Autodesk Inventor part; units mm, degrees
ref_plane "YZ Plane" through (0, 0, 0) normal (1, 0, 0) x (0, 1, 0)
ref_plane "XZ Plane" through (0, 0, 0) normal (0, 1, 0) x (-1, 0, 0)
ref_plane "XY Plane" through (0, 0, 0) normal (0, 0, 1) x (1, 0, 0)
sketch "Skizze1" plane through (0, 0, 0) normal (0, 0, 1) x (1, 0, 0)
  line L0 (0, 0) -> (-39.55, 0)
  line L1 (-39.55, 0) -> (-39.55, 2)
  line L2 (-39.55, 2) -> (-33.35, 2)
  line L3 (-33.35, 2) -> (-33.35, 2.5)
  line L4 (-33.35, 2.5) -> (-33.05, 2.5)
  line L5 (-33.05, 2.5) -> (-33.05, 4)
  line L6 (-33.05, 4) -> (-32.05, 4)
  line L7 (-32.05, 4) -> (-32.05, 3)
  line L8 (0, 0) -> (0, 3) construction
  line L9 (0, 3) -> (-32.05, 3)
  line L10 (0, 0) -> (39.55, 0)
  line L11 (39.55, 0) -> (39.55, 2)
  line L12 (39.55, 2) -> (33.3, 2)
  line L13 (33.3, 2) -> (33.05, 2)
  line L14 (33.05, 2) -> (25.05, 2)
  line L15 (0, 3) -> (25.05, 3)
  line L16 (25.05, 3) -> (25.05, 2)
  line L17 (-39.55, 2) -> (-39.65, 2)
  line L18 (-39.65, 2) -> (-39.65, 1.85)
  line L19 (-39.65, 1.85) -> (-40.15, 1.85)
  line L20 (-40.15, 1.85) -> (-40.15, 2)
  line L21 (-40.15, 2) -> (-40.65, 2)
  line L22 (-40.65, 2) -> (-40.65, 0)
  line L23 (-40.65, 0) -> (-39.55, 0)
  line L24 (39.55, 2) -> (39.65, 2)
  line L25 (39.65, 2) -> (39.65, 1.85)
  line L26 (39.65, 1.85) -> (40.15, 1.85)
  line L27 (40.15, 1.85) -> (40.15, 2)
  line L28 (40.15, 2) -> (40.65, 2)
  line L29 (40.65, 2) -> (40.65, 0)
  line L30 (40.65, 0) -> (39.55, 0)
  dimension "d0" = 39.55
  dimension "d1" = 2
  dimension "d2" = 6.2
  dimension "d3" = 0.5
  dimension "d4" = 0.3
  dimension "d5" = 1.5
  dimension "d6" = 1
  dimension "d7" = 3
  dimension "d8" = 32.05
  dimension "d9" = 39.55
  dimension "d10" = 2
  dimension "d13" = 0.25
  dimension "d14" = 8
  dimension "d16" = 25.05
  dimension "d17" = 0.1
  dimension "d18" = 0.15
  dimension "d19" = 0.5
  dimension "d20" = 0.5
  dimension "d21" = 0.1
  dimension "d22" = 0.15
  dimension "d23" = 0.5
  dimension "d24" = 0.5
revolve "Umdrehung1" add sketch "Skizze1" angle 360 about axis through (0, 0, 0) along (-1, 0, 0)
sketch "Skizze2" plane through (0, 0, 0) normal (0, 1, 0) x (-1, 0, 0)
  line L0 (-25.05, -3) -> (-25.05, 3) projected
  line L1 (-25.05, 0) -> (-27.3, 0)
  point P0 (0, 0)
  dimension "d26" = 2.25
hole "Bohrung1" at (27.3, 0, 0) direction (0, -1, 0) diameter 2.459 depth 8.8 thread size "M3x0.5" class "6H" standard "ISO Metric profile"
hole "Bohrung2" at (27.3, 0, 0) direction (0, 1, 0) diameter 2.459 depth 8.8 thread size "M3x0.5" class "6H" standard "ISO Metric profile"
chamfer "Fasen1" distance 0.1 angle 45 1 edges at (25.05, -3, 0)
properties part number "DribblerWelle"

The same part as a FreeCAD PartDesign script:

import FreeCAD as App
import Part
import Sketcher

V = App.Vector
Q = App.Units.Quantity


def edges_at(feature, points):
    """Names of the edges that pass closest to the given points."""
    edges = feature.Shape.Edges
    near = lambda p: min(range(len(edges)), key=lambda i: edges[i].distToShape(Part.Vertex(*p))[0])
    return sorted({f"Edge{near(p) + 1}" for p in points})

doc = App.newDocument("Part")
body = doc.addObject("PartDesign::Body", "Body")

# Sketch on XY plane
sketch1 = doc.addObject("Sketcher::SketchObject", "Sketch")
body.addObject(sketch1)
sketch1.AttachmentSupport = (doc.XY_Plane, [""])
sketch1.MapMode = "FlatFace"
sketch1.addGeometry([
    Part.LineSegment(V(40.65, 0, 0), V(40.65, 2, 0)),  # 0
    Part.LineSegment(V(40.65, 2, 0), V(40.15, 2, 0)),  # 1
    Part.LineSegment(V(40.15, 2, 0), V(40.15, 1.85, 0)),  # 2
    Part.LineSegment(V(40.15, 1.85, 0), V(39.65, 1.85, 0)),  # 3
    Part.LineSegment(V(39.65, 1.85, 0), V(39.65, 2, 0)),  # 4
    Part.LineSegment(V(39.65, 2, 0), V(25.05, 2, 0)),  # 5
    Part.LineSegment(V(25.05, 2, 0), V(25.05, 3, 0)),  # 6
    Part.LineSegment(V(25.05, 3, 0), V(-32.05, 3, 0)),  # 7
    Part.LineSegment(V(-32.05, 3, 0), V(-32.05, 4, 0)),  # 8
    Part.LineSegment(V(-32.05, 4, 0), V(-33.05, 4, 0)),  # 9
    Part.LineSegment(V(-33.05, 4, 0), V(-33.05, 2.5, 0)),  # 10
    Part.LineSegment(V(-33.05, 2.5, 0), V(-33.35, 2.5, 0)),  # 11
    Part.LineSegment(V(-33.35, 2.5, 0), V(-33.35, 2, 0)),  # 12
    Part.LineSegment(V(-33.35, 2, 0), V(-39.65, 2, 0)),  # 13
    Part.LineSegment(V(-39.65, 2, 0), V(-39.65, 1.85, 0)),  # 14
    Part.LineSegment(V(-39.65, 1.85, 0), V(-40.15, 1.85, 0)),  # 15
    Part.LineSegment(V(-40.15, 1.85, 0), V(-40.15, 2, 0)),  # 16
    Part.LineSegment(V(-40.15, 2, 0), V(-40.65, 2, 0)),  # 17
    Part.LineSegment(V(-40.65, 2, 0), V(-40.65, 0, 0)),  # 18
    Part.LineSegment(V(-40.65, 0, 0), V(40.65, 0, 0)),  # 19
], False)
sketch1.addConstraint([
    Sketcher.Constraint("Coincident", 0, 2, 1, 1),
    Sketcher.Constraint("Coincident", 1, 2, 2, 1),
    Sketcher.Constraint("Coincident", 2, 2, 3, 1),
    Sketcher.Constraint("Coincident", 3, 2, 4, 1),
    Sketcher.Constraint("Coincident", 4, 2, 5, 1),
    Sketcher.Constraint("Coincident", 5, 2, 6, 1),
    Sketcher.Constraint("Coincident", 6, 2, 7, 1),
    Sketcher.Constraint("Coincident", 7, 2, 8, 1),
    Sketcher.Constraint("Coincident", 8, 2, 9, 1),
    Sketcher.Constraint("Coincident", 9, 2, 10, 1),
    Sketcher.Constraint("Coincident", 10, 2, 11, 1),
    Sketcher.Constraint("Coincident", 11, 2, 12, 1),
    Sketcher.Constraint("Coincident", 12, 2, 13, 1),
    Sketcher.Constraint("Coincident", 13, 2, 14, 1),
    Sketcher.Constraint("Coincident", 14, 2, 15, 1),
    Sketcher.Constraint("Coincident", 15, 2, 16, 1),
    Sketcher.Constraint("Coincident", 16, 2, 17, 1),
    Sketcher.Constraint("Coincident", 17, 2, 18, 1),
    Sketcher.Constraint("Coincident", 18, 2, 19, 1),
    Sketcher.Constraint("Coincident", 19, 2, 0, 1),
    Sketcher.Constraint("Vertical", 0),
    Sketcher.Constraint("Horizontal", 1),
    Sketcher.Constraint("Vertical", 2),
    Sketcher.Constraint("Horizontal", 3),
    Sketcher.Constraint("Vertical", 4),
    Sketcher.Constraint("Horizontal", 5),
    Sketcher.Constraint("Vertical", 6),
    Sketcher.Constraint("Horizontal", 7),
    Sketcher.Constraint("Vertical", 8),
    Sketcher.Constraint("Horizontal", 9),
    Sketcher.Constraint("Vertical", 10),
    Sketcher.Constraint("Horizontal", 11),
    Sketcher.Constraint("Vertical", 12),
    Sketcher.Constraint("Horizontal", 13),
    Sketcher.Constraint("Vertical", 14),
    Sketcher.Constraint("Horizontal", 15),
    Sketcher.Constraint("Vertical", 16),
    Sketcher.Constraint("Horizontal", 17),
    Sketcher.Constraint("Vertical", 18),
    Sketcher.Constraint("Horizontal", 19),
    Sketcher.Constraint("Symmetric", 18, 2, 19, 2, -1, 1),
    Sketcher.Constraint("Symmetric", 4, 2, 13, 2, -2),
    Sketcher.Constraint("Symmetric", 2, 2, 15, 2, -2),
    Sketcher.Constraint("Horizontal", 1, 2, 4, 2),
    Sketcher.Constraint("Horizontal", 13, 2, 16, 2),
    Sketcher.Constraint("Equal", 1, 3),
    Sketcher.Constraint("Equal", 9, 6),
    Sketcher.Constraint("Equal", 6, 8),
    Sketcher.Constraint("Equal", 17, 12),
    Sketcher.Constraint("DistanceX", 9, 2, 9, 1, Q("1 mm")),
    Sketcher.Constraint("DistanceY", 0, 1, 0, 2, Q("2 mm")),
    Sketcher.Constraint("DistanceX", 1, 2, 1, 1, Q("0.5 mm")),
    Sketcher.Constraint("DistanceX", 11, 2, 11, 1, Q("0.3 mm")),
    Sketcher.Constraint("DistanceY", 2, 2, 2, 1, Q("0.15 mm")),
    Sketcher.Constraint("DistanceX", -1, 1, 5, 2, Q("25.05 mm")),
    Sketcher.Constraint("DistanceX", 7, 2, -1, 1, Q("32.05 mm")),
    Sketcher.Constraint("DistanceX", 5, 2, 5, 1, Q("14.6 mm")),
])
revolution = doc.addObject("PartDesign::Revolution", "Revolution")
body.addObject(revolution)
revolution.Profile = sketch1
revolution.ReferenceAxis = (sketch1, ["H_Axis"])
revolution.Angle = 360

# Sketch on XZ plane
sketch2 = doc.addObject("Sketcher::SketchObject", "Sketch001")
body.addObject(sketch2)
sketch2.AttachmentSupport = (doc.XZ_Plane, [""])
sketch2.MapMode = "FlatFace"
sketch2.addGeometry(Part.Circle(V(27.3, 0, 0), V(0, 0, 1), 1.2), False)
sketch2.addConstraint([
    Sketcher.Constraint("PointOnObject", 0, 3, -1),
    Sketcher.Constraint("Diameter", 0, Q("2.459 mm")),
    Sketcher.Constraint("DistanceX", -1, 1, 0, 3, Q("27.3 mm")),
])
doc.recompute()
hole = doc.addObject("PartDesign::Hole", "Hole")
body.addObject(hole)
hole.Profile = sketch2
hole.ThreadType = "None"
hole.Diameter = 2.459
hole.DepthType = "Dimension"
hole.Depth = 8.8
hole.DrillPoint = "Flat"
hole.Reversed = True

# Sketch on XZ plane
sketch3 = doc.addObject("Sketcher::SketchObject", "Sketch002")
body.addObject(sketch3)
sketch3.AttachmentSupport = (doc.XZ_Plane, [""])
sketch3.MapMode = "FlatFace"
sketch3.addGeometry(Part.Circle(V(27.3, 0, 0), V(0, 0, 1), 1.2), False)
sketch3.addConstraint([
    Sketcher.Constraint("PointOnObject", 0, 3, -1),
    Sketcher.Constraint("Diameter", 0, Q("2.459 mm")),
    Sketcher.Constraint("DistanceX", -1, 1, 0, 3, Q("27.3 mm")),
])
doc.recompute()
hole2 = doc.addObject("PartDesign::Hole", "Hole001")
body.addObject(hole2)
hole2.Profile = sketch3
hole2.ThreadType = "None"
hole2.Diameter = 2.459
hole2.DepthType = "Dimension"
hole2.Depth = 8.8
hole2.DrillPoint = "Flat"
doc.recompute()

chamfer = doc.addObject("PartDesign::Chamfer", "Chamfer")
body.addObject(chamfer)
chamfer.Base = (hole2, edges_at(hole2, [(25.05, -3, 0)]))
chamfer.Size = 0.1

doc.recompute()
